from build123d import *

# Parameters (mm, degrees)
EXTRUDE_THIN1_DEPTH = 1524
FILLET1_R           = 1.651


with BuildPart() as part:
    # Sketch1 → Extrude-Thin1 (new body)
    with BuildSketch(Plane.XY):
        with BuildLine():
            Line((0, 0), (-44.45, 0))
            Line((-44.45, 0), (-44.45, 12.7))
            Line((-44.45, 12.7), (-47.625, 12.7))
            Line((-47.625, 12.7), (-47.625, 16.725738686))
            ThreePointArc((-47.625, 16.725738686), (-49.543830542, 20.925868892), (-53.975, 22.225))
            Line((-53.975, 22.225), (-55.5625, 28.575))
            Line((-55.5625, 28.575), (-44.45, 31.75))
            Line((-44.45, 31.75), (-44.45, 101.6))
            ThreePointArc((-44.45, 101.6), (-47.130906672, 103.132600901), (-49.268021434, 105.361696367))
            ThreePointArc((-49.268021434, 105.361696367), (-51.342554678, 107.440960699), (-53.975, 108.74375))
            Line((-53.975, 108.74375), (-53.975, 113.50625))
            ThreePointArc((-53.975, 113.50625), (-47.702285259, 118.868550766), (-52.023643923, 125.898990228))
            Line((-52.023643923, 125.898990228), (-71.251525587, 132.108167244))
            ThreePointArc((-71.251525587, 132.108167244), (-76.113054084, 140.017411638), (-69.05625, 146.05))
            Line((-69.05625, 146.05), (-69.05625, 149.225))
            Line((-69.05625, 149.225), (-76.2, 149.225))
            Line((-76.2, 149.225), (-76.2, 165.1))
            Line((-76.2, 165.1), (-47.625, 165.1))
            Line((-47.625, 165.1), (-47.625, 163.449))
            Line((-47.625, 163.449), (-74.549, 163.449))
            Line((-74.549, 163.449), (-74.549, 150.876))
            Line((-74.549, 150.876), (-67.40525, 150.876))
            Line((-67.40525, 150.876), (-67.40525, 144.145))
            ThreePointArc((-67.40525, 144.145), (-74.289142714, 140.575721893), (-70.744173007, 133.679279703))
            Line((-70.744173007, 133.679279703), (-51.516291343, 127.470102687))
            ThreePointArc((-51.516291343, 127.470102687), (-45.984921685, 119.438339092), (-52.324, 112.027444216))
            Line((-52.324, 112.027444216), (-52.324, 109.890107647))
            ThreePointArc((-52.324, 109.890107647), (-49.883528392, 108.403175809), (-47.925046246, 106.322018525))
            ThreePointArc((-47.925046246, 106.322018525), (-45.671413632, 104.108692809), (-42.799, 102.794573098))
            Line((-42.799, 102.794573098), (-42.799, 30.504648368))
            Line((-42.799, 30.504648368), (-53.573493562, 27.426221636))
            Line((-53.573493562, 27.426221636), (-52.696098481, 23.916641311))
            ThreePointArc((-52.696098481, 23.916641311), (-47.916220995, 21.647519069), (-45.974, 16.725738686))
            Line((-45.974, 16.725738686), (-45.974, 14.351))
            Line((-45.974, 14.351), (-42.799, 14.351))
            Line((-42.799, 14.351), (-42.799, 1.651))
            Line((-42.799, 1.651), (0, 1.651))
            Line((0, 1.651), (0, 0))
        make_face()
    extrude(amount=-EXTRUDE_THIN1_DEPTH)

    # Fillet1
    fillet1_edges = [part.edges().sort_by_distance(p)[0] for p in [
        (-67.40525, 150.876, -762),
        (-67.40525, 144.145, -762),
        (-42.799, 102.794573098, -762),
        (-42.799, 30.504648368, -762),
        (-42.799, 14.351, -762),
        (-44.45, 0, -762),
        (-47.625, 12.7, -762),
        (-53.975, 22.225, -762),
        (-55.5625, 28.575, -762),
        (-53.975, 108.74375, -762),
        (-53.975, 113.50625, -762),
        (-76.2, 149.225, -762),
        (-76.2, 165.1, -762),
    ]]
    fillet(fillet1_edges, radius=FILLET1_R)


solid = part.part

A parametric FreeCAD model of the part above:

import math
import FreeCAD as App
import Part
import Sketcher
Q = App.Units.Quantity


def edges_at(feature, points):
    """Names of the edges that pass closest to the given points."""
    edges = feature.Shape.Edges
    near = lambda p: min(range(len(edges)), key=lambda i: edges[i].distToShape(Part.Vertex(*p))[0])
    return sorted({f"Edge{near(p) + 1}" for p in points})

doc = App.newDocument("Part")
params = doc.addObject("Spreadsheet::Sheet", "Params")
for row, (alias, value) in enumerate([
    ("sketch1_radius", "0.25 in"),
    ("sketch1_height", "0.5 in"),
    ("sketch1_radius2", "0.315 in"),
    ("sketch1_radius3", "0.28125 in"),
    ("sketch1_radius4", "0.21875 in"),
    ("pad1_length", "60 in"),
    ("fillet_radius", "0.065 in"),
], start=1):
    params.set(f"A{row}", alias)
    params.set(f"B{row}", "=" + value)
    params.setAlias(f"B{row}", alias)

body = doc.addObject("PartDesign::Body", "Body")

sketch1 = doc.addObject("Sketcher::SketchObject", "Sketch")
body.addObject(sketch1)
sketch1.AttachmentSupport = (doc.XY_Plane, [""])
sketch1.MapMode = "FlatFace"
sketch1.addGeometry([
    Part.LineSegment(App.Vector(-44.5, 0, 0), App.Vector(0, 0, 0)),
    Part.LineSegment(App.Vector(0, 0, 0), App.Vector(0, 1.7, 0)),
    Part.LineSegment(App.Vector(0, 1.7, 0), App.Vector(-42.8, 1.7, 0)),
    Part.LineSegment(App.Vector(-42.8, 1.7, 0), App.Vector(-42.8, 14.4, 0)),
    Part.LineSegment(App.Vector(-42.8, 14.4, 0), App.Vector(-46, 14.4, 0)),
    Part.LineSegment(App.Vector(-46, 14.4, 0), App.Vector(-46, 16.7, 0)),
    Part.ArcOfCircle(Part.Circle(App.Vector(-53.2, 16.7, 0), App.Vector(0, 0, 1), 7.2), math.radians(0), math.radians(86)),
    Part.LineSegment(App.Vector(-52.7, 23.9, 0), App.Vector(-53.6, 27.4, 0)),
    Part.LineSegment(App.Vector(-53.6, 27.4, 0), App.Vector(-42.8, 30.5, 0)),
    Part.LineSegment(App.Vector(-42.8, 30.5, 0), App.Vector(-42.8, 102.8, 0)),
    Part.ArcOfCircle(Part.Circle(App.Vector(-40.5, 111.6, 0), App.Vector(0, 0, 1), 9.1), math.radians(-144), math.radians(-105)),
    Part.ArcOfCircle(Part.Circle(App.Vector(-56.6, 100.1, 0), App.Vector(0, 0, 1), 10.7), math.radians(36), math.radians(66)),
    Part.LineSegment(App.Vector(-52.3, 109.9, 0), App.Vector(-52.3, 112, 0)),
    Part.ArcOfCircle(Part.Circle(App.Vector(-54, 119.9, 0), App.Vector(0, 0, 1), 8), math.radians(-78), math.radians(72)),
    Part.LineSegment(App.Vector(-51.5, 127.5, 0), App.Vector(-70.7, 133.7, 0)),
    Part.ArcOfCircle(Part.Circle(App.Vector(-69.1, 138.9, 0), App.Vector(0, 0, 1), 5.5), math.radians(73), math.radians(252)),
    Part.LineSegment(App.Vector(-67.4, 144.1, 0), App.Vector(-67.4, 150.9, 0)),
    Part.LineSegment(App.Vector(-67.4, 150.9, 0), App.Vector(-74.5, 150.9, 0)),
    Part.LineSegment(App.Vector(-74.5, 150.9, 0), App.Vector(-74.5, 163.4, 0)),
    Part.LineSegment(App.Vector(-74.5, 163.4, 0), App.Vector(-47.6, 163.4, 0)),
    Part.LineSegment(App.Vector(-47.6, 163.4, 0), App.Vector(-47.6, 165.1, 0)),
    Part.LineSegment(App.Vector(-47.6, 165.1, 0), App.Vector(-76.2, 165.1, 0)),
    Part.LineSegment(App.Vector(-76.2, 165.1, 0), App.Vector(-76.2, 149.2, 0)),
    Part.LineSegment(App.Vector(-76.2, 149.2, 0), App.Vector(-69.1, 149.2, 0)),
    Part.LineSegment(App.Vector(-69.1, 149.2, 0), App.Vector(-69.1, 146.1, 0)),
    Part.ArcOfCircle(Part.Circle(App.Vector(-69.1, 138.9, 0), App.Vector(0, 0, 1), 7.1), math.radians(90), math.radians(252)),
    Part.LineSegment(App.Vector(-71.3, 132.1, 0), App.Vector(-52, 125.9, 0)),
    Part.ArcOfCircle(Part.Circle(App.Vector(-54, 119.9, 0), App.Vector(0, 0, 1), 6.3), math.radians(-90), math.radians(72)),
    Part.LineSegment(App.Vector(-54, 113.5, 0), App.Vector(-54, 108.7, 0)),
    Part.ArcOfCircle(Part.Circle(App.Vector(-56.6, 100.1, 0), App.Vector(0, 0, 1), 9), math.radians(36), math.radians(73)),
    Part.ArcOfCircle(Part.Circle(App.Vector(-40.5, 111.6, 0), App.Vector(0, 0, 1), 10.8), math.radians(-144), math.radians(-112)),
    Part.LineSegment(App.Vector(-44.5, 101.6, 0), App.Vector(-44.5, 31.8, 0)),
    Part.LineSegment(App.Vector(-44.5, 31.8, 0), App.Vector(-55.6, 28.6, 0)),
    Part.LineSegment(App.Vector(-55.6, 28.6, 0), App.Vector(-54, 22.2, 0)),
    Part.ArcOfCircle(Part.Circle(App.Vector(-53.2, 16.7, 0), App.Vector(0, 0, 1), 5.6), math.radians(0), math.radians(98)),
    Part.LineSegment(App.Vector(-47.6, 16.7, 0), App.Vector(-47.6, 12.7, 0)),
    Part.LineSegment(App.Vector(-47.6, 12.7, 0), App.Vector(-44.5, 12.7, 0)),
    Part.LineSegment(App.Vector(-44.5, 12.7, 0), App.Vector(-44.5, 0, 0)),
], False)
sketch1.addConstraint([
    Sketcher.Constraint("Coincident", 0, 2, 1, 1),
    Sketcher.Constraint("Coincident", 1, 2, 2, 1),
    Sketcher.Constraint("Coincident", 2, 2, 3, 1),
    Sketcher.Constraint("Coincident", 3, 2, 4, 1),
    Sketcher.Constraint("Coincident", 4, 2, 5, 1),
    Sketcher.Constraint("Tangent", 5, 2, 6, 1),
    Sketcher.Constraint("Coincident", 6, 2, 7, 1),
    Sketcher.Constraint("Coincident", 7, 2, 8, 1),
    Sketcher.Constraint("Coincident", 8, 2, 9, 1),
    Sketcher.Constraint("Coincident", 9, 2, 10, 2),
    Sketcher.Constraint("Tangent", 10, 1, 11, 1),
    Sketcher.Constraint("Coincident", 11, 2, 12, 1),
    Sketcher.Constraint("Coincident", 12, 2, 13, 1),
    Sketcher.Constraint("Tangent", 13, 2, 14, 1),
    Sketcher.Constraint("Tangent", 14, 2, 15, 2),
    Sketcher.Constraint("Coincident", 15, 1, 16, 1),
    Sketcher.Constraint("Coincident", 16, 2, 17, 1),
    Sketcher.Constraint("Coincident", 17, 2, 18, 1),
    Sketcher.Constraint("Coincident", 18, 2, 19, 1),
    Sketcher.Constraint("Coincident", 19, 2, 20, 1),
    Sketcher.Constraint("Coincident", 20, 2, 21, 1),
    Sketcher.Constraint("Coincident", 21, 2, 22, 1),
    Sketcher.Constraint("Coincident", 22, 2, 23, 1),
    Sketcher.Constraint("Coincident", 23, 2, 24, 1),
    Sketcher.Constraint("Coincident", 24, 2, 25, 1),
    Sketcher.Constraint("Tangent", 25, 2, 26, 1),
    Sketcher.Constraint("Tangent", 26, 2, 27, 2),
    Sketcher.Constraint("Coincident", 27, 1, 28, 1),
    Sketcher.Constraint("Coincident", 28, 2, 29, 2),
    Sketcher.Constraint("Tangent", 29, 1, 30, 1),
    Sketcher.Constraint("Coincident", 30, 2, 31, 1),
    Sketcher.Constraint("Coincident", 31, 2, 32, 1),
    Sketcher.Constraint("Coincident", 32, 2, 33, 1),
    Sketcher.Constraint("Coincident", 33, 2, 34, 2),
    Sketcher.Constraint("Tangent", 34, 1, 35, 1),
    Sketcher.Constraint("Coincident", 35, 2, 36, 1),
    Sketcher.Constraint("Coincident", 36, 2, 37, 1),
    Sketcher.Constraint("Coincident", 37, 2, 0, 1),
    Sketcher.Constraint("Horizontal", 0),
    Sketcher.Constraint("Vertical", 1),
    Sketcher.Constraint("Horizontal", 2),
    Sketcher.Constraint("Vertical", 3),
    Sketcher.Constraint("Horizontal", 4),
    Sketcher.Constraint("Vertical", 5),
    Sketcher.Constraint("Vertical", 9),
    Sketcher.Constraint("Vertical", 12),
    Sketcher.Constraint("Vertical", 16),
    Sketcher.Constraint("Horizontal", 17),
    Sketcher.Constraint("Vertical", 18),
    Sketcher.Constraint("Horizontal", 19),
    Sketcher.Constraint("Vertical", 20),
    Sketcher.Constraint("Horizontal", 21),
    Sketcher.Constraint("Vertical", 22),
    Sketcher.Constraint("Horizontal", 23),
    Sketcher.Constraint("Vertical", 24),
    Sketcher.Constraint("Vertical", 28),
    Sketcher.Constraint("Vertical", 31),
    Sketcher.Constraint("Vertical", 35),
    Sketcher.Constraint("Horizontal", 36),
    Sketcher.Constraint("Vertical", 37),
    Sketcher.Constraint("Coincident", 0, 2, -1, 1),
    Sketcher.Constraint("Coincident", 25, 3, 15, 3),
    Sketcher.Constraint("Coincident", 27, 3, 13, 3),
    Sketcher.Constraint("Coincident", 29, 3, 11, 3),
    Sketcher.Constraint("Coincident", 30, 3, 10, 3),
    Sketcher.Constraint("Coincident", 34, 3, 6, 3),
    Sketcher.Constraint("Parallel", 14, 26),
    Sketcher.Constraint("Parallel", 8, 32),
    Sketcher.Constraint("Parallel", 7, 33),
    Sketcher.Constraint("Vertical", 3, 2, 8, 2),
    Sketcher.Constraint("Vertical", 25, 3, 23, 2),
    Sketcher.Constraint("Vertical", 13, 3, 27, 1),
    Sketcher.Constraint("Vertical", 28, 2, 33, 2),
    Sketcher.Constraint("Vertical", 20, 2, 34, 1),
    Sketcher.Constraint("Vertical", 31, 2, 36, 2),
    Sketcher.Constraint("Equal", 17, 23),
    Sketcher.Constraint("Equal", 4, 36),
    Sketcher.Constraint("Equal", 1, 20),
    Sketcher.Constraint("Equal", 36, 24),
    Sketcher.Constraint("Equal", 3, 37),
    Sketcher.Constraint("Radius", 27, Q("0.25 in")),
    Sketcher.Constraint("DistanceY", 3, 1, 3, 2, Q("0.5 in")),
    Sketcher.Constraint("DistanceX", 21, 2, -1, 1, Q("3 in")),
    Sketcher.Constraint("DistanceY", -1, 1, 30, 2, Q("4 in")),
    Sketcher.Constraint("Radius", 13, Q("0.315 in")),
    Sketcher.Constraint("Radius", 25, Q("0.28125 in")),
    Sketcher.Constraint("Radius", 34, Q("0.21875 in")),
    Sketcher.Constraint("DistanceX", 0, 1, 0, 2, Q("1.75 in")),
    Sketcher.Constraint("DistanceX", 19, 1, 19, 2, Q("1.06 in")),
    Sketcher.Constraint("DistanceY", 31, 2, 31, 1, Q("2.75 in")),
    Sketcher.Constraint("DistanceY", -1, 1, 20, 2, Q("6.5 in")),
    Sketcher.Constraint("DistanceY", 15, 1, 22, 2, Q("0.2 in")),
    Sketcher.Constraint("DistanceX", 2, 2, 2, 1, Q("1.685 in")),
    Sketcher.Constraint("DistanceX", 17, 2, 17, 1, Q("0.28125 in")),
    Sketcher.Constraint("DistanceY", 1, 1, 1, 2, Q("0.065 in")),
    Sketcher.Constraint("DistanceY", 16, 1, 16, 2, Q("0.265 in")),
    Sketcher.Constraint("DistanceY", 18, 1, 18, 2, Q("0.495 in")),
    Sketcher.Constraint("DistanceY", 28, 2, 28, 1, Q("0.1875 in")),
    Sketcher.Constraint("DistanceX", 11, 2, -1, 1, Q("2.06 in")),
    Sketcher.Constraint("DistanceY", 13, 3, 15, 3, Q("0.75 in")),
    Sketcher.Constraint("DistanceX", 13, 3, 9, 2, Q("0.44 in")),
    Sketcher.Constraint("DistanceY", 33, 2, 32, 2, Q("0.25 in")),
    Sketcher.Constraint("DistanceX", 32, 2, -1, 1, Q("2.1875 in")),
    Sketcher.Constraint("DistanceY", -1, 1, 32, 2, Q("1.125 in")),
    Sketcher.Constraint("DistanceY", -1, 1, 6, 2, Q("0.9416001 in")),
    Sketcher.Constraint("Radius", 10, Q("9.140905 mm")),
    Sketcher.Constraint("Radius", 11, Q("10.673887 mm")),
    Sketcher.Constraint("Radius", 29, Q("9.022887 mm")),
    Sketcher.Constraint("DistanceX", 10, 1, 10, 3, Q("7.435499 mm")),
    Sketcher.Constraint("DistanceY", 9, 1, 9, 2, Q("72.289925 mm")),
])
sketch1.setExpression("Constraints[80]", "Params.sketch1_radius")
sketch1.setExpression("Constraints[81]", "Params.sketch1_height")
sketch1.setExpression("Constraints[84]", "Params.sketch1_radius2")
sketch1.setExpression("Constraints[85]", "Params.sketch1_radius3")
sketch1.setExpression("Constraints[86]", "Params.sketch1_radius4")
pad1 = doc.addObject("PartDesign::Pad", "Pad")
body.addObject(pad1)
pad1.Profile = sketch1
pad1.setExpression("Length", "Params.pad1_length")
pad1.Reversed = True
doc.recompute()

fillet = doc.addObject("PartDesign::Fillet", "Fillet")
body.addObject(fillet)
fillet.Base = (pad1, edges_at(pad1, [
    (-67.405, 150.876, -762),
    (-67.405, 144.145, -762),
    (-42.799, 102.795, -762),
    (-42.799, 30.505, -762),
    (-42.799, 14.351, -762),
    (-44.45, 0, -762),
    (-47.625, 12.7, -762),
    (-53.975, 22.225, -762),
    (-55.562, 28.575, -762),
    (-53.975, 108.744, -762),
    (-53.975, 113.506, -762),
    (-76.2, 149.225, -762),
    (-76.2, 165.1, -762),
]))
fillet.setExpression("Radius", "Params.fillet_radius")

doc.recompute()
